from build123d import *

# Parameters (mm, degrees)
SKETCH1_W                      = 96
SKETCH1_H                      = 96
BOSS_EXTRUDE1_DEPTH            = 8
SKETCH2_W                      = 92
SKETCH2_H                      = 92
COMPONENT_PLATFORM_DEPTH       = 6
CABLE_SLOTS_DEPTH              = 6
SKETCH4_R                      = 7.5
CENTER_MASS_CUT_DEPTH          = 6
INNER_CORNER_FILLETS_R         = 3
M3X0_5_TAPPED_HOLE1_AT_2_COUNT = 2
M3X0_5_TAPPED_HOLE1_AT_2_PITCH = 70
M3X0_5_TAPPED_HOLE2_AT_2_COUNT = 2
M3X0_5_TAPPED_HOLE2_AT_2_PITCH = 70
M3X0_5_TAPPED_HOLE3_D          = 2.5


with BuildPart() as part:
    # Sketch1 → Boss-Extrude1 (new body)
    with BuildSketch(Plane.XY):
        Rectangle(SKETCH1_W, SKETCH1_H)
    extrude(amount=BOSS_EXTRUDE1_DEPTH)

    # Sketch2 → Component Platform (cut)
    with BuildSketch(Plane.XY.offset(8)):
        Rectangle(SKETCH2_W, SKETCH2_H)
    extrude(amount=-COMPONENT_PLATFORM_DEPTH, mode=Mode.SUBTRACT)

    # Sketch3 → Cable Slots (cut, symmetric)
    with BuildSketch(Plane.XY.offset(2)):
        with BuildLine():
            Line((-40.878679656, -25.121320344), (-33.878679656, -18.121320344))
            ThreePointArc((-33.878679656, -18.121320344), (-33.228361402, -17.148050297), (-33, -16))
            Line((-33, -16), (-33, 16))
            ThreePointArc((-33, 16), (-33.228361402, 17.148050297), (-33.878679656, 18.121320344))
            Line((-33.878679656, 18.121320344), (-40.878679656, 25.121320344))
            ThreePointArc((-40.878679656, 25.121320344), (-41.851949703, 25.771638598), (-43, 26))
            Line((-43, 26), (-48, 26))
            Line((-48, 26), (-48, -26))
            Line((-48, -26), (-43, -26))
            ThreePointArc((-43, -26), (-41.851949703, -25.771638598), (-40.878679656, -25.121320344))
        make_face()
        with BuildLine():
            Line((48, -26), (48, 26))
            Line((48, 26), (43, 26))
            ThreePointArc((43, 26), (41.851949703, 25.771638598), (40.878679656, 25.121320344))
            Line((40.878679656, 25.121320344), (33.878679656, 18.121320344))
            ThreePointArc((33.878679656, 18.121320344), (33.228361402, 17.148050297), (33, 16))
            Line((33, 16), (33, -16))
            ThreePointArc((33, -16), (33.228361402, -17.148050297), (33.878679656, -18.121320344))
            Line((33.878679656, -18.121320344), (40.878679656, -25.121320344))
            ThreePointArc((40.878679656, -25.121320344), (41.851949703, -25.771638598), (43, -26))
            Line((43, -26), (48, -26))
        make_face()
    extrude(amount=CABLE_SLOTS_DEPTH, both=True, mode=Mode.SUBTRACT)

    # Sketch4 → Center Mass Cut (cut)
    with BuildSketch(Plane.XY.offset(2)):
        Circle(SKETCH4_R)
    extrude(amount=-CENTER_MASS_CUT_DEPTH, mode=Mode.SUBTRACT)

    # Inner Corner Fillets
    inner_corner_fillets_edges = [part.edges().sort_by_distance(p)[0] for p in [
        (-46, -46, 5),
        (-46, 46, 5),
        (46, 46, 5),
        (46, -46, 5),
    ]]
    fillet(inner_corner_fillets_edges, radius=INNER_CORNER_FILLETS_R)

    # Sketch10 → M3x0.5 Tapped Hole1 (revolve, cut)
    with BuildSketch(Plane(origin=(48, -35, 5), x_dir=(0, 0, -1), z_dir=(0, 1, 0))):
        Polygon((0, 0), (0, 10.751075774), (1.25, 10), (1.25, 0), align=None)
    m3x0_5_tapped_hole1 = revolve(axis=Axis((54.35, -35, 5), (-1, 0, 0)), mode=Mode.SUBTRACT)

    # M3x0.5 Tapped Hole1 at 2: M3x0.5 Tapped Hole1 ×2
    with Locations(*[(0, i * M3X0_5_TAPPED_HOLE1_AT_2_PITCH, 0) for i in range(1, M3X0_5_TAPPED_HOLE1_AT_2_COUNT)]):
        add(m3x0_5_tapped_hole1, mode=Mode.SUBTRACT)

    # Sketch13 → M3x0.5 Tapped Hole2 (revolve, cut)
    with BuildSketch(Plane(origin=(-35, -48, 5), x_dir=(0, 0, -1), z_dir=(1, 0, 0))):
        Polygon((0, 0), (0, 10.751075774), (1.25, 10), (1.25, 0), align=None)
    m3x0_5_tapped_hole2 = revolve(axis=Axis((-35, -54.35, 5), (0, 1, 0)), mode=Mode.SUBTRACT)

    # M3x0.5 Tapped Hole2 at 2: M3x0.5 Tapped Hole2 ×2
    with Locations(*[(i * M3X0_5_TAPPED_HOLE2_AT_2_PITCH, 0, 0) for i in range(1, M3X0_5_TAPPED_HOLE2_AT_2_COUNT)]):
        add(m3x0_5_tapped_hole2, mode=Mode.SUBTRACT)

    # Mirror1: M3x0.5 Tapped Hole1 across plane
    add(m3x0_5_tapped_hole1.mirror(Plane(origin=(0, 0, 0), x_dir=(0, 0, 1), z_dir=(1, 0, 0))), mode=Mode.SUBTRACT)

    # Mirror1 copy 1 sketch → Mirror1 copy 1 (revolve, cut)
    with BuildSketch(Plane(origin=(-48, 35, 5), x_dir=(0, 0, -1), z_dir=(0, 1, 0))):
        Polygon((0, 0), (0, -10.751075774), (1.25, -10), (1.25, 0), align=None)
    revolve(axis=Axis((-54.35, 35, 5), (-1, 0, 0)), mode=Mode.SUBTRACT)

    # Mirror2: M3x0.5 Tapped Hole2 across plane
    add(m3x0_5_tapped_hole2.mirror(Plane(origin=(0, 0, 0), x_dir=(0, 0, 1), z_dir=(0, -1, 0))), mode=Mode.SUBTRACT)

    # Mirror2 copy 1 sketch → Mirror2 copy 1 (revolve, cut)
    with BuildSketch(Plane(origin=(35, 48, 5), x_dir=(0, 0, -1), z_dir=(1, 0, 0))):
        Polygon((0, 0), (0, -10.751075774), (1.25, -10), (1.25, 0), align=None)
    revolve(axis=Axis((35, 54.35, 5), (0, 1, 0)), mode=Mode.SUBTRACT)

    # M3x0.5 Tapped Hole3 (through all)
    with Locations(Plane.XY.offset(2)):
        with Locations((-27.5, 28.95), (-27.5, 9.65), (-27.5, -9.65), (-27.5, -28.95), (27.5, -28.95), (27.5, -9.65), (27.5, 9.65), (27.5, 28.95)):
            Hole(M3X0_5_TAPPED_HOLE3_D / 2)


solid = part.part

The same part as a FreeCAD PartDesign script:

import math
import FreeCAD as App
import Part
import Sketcher
Q = App.Units.Quantity


def edges_at(feature, points):
    """Names of the edges that pass closest to the given points."""
    edges = feature.Shape.Edges
    near = lambda p: min(range(len(edges)), key=lambda i: edges[i].distToShape(Part.Vertex(*p))[0])
    return sorted({f"Edge{near(p) + 1}" for p in points})


def add_polygon(sketch, points):
    """Adds a closed chain of lines whose ends are joined by coincident constraints."""
    first, n = sketch.GeometryCount, len(points)
    for a, b in zip(points, points[1:] + points[:1]):
        sketch.addGeometry(Part.LineSegment(App.Vector(*a, 0), App.Vector(*b, 0)), False)
    for i in range(n):
        sketch.addConstraint(Sketcher.Constraint("Coincident", first + i, 2, first + (i + 1) % n, 1))

doc = App.newDocument("Part")
body = doc.addObject("PartDesign::Body", "Body")

# Sketch on XY plane
sketch1 = body.newObject("Sketcher::SketchObject", "Sketch")
sketch1.AttachmentSupport = (doc.getObject("XY_Plane"), [""])
sketch1.MapMode = "FlatFace"
add_polygon(sketch1, [(-48, 48), (-48, -48), (48, -48), (48, 48)])  # lines 0-3
sketch1.addConstraint(Sketcher.Constraint("Vertical", 0))
sketch1.addConstraint(Sketcher.Constraint("Horizontal", 1))
sketch1.addConstraint(Sketcher.Constraint("Vertical", 2))
sketch1.addConstraint(Sketcher.Constraint("Horizontal", 3))
sketch1.addConstraint(Sketcher.Constraint("Symmetric", 0, 2, 2, 2, -1, 1))
sketch1.addConstraint(Sketcher.Constraint("Equal", 3, 0))
sketch1.addConstraint(Sketcher.Constraint("DistanceX", 1, 1, 1, 2, 96.0))
pad1 = body.newObject("PartDesign::Pad", "Pad")
pad1.Profile = sketch1
pad1.Length = 8

# Sketch on XY plane
sketch2 = body.newObject("Sketcher::SketchObject", "Sketch001")
sketch2.AttachmentSupport = (doc.getObject("XY_Plane"), [""])
sketch2.MapMode = "FlatFace"
sketch2.AttachmentOffset = App.Placement(App.Vector(0, 0, 8), App.Rotation())
add_polygon(sketch2, [(-46, 46), (-46, -46), (46, -46), (46, 46)])  # lines 0-3
sketch2.addConstraint(Sketcher.Constraint("Vertical", 0))
sketch2.addConstraint(Sketcher.Constraint("Horizontal", 1))
sketch2.addConstraint(Sketcher.Constraint("Vertical", 2))
sketch2.addConstraint(Sketcher.Constraint("Horizontal", 3))
sketch2.addConstraint(Sketcher.Constraint("Symmetric", 0, 2, 2, 2, -1, 1))
sketch2.addConstraint(Sketcher.Constraint("Equal", 3, 0))
sketch2.addConstraint(Sketcher.Constraint("DistanceX", 1, 1, 1, 2, 92.0))
pocket1 = body.newObject("PartDesign::Pocket", "Pocket")
pocket1.Profile = sketch2
pocket1.Length = 6

# Sketch on XY plane
sketch3 = body.newObject("Sketcher::SketchObject", "Sketch002")
sketch3.AttachmentSupport = (doc.getObject("XY_Plane"), [""])
sketch3.MapMode = "FlatFace"
sketch3.AttachmentOffset = App.Placement(App.Vector(0, 0, 2), App.Rotation())
sketch3.addGeometry(Part.LineSegment(App.Vector(-40.9, -25.1, 0), App.Vector(-33.9, -18.1, 0)), False)
sketch3.addGeometry(Part.ArcOfCircle(Part.Circle(App.Vector(-36, -16, 0), App.Vector(0, 0, 1), 3), math.radians(-45), math.radians(0)), False)
sketch3.addGeometry(Part.LineSegment(App.Vector(-33, -16, 0), App.Vector(-33, 16, 0)), False)
sketch3.addGeometry(Part.ArcOfCircle(Part.Circle(App.Vector(-36, 16, 0), App.Vector(0, 0, 1), 3), math.radians(0), math.radians(45)), False)
sketch3.addGeometry(Part.LineSegment(App.Vector(-33.9, 18.1, 0), App.Vector(-40.9, 25.1, 0)), False)
sketch3.addGeometry(Part.ArcOfCircle(Part.Circle(App.Vector(-43, 23, 0), App.Vector(0, 0, 1), 3), math.radians(45), math.radians(90)), False)
sketch3.addGeometry(Part.LineSegment(App.Vector(-43, 26, 0), App.Vector(-48, 26, 0)), False)
sketch3.addGeometry(Part.LineSegment(App.Vector(-48, 26, 0), App.Vector(-48, -26, 0)), False)
sketch3.addGeometry(Part.LineSegment(App.Vector(-48, -26, 0), App.Vector(-43, -26, 0)), False)
sketch3.addGeometry(Part.ArcOfCircle(Part.Circle(App.Vector(-43, -23, 0), App.Vector(0, 0, 1), 3), math.radians(-90), math.radians(-45)), False)
sketch3.addGeometry(Part.LineSegment(App.Vector(48, -26, 0), App.Vector(48, 26, 0)), False)
sketch3.addGeometry(Part.LineSegment(App.Vector(48, 26, 0), App.Vector(43, 26, 0)), False)
sketch3.addGeometry(Part.ArcOfCircle(Part.Circle(App.Vector(43, 23, 0), App.Vector(0, 0, 1), 3), math.radians(90), math.radians(135)), False)
sketch3.addGeometry(Part.LineSegment(App.Vector(40.9, 25.1, 0), App.Vector(33.9, 18.1, 0)), False)
sketch3.addGeometry(Part.ArcOfCircle(Part.Circle(App.Vector(36, 16, 0), App.Vector(0, 0, 1), 3), math.radians(135), math.radians(180)), False)
sketch3.addGeometry(Part.LineSegment(App.Vector(33, 16, 0), App.Vector(33, -16, 0)), False)
sketch3.addGeometry(Part.ArcOfCircle(Part.Circle(App.Vector(36, -16, 0), App.Vector(0, 0, 1), 3), math.radians(180), math.radians(225)), False)
sketch3.addGeometry(Part.LineSegment(App.Vector(33.9, -18.1, 0), App.Vector(40.9, -25.1, 0)), False)
sketch3.addGeometry(Part.ArcOfCircle(Part.Circle(App.Vector(43, -23, 0), App.Vector(0, 0, 1), 3), math.radians(-135), math.radians(-90)), False)
sketch3.addGeometry(Part.LineSegment(App.Vector(43, -26, 0), App.Vector(48, -26, 0)), False)
sketch3.addConstraint(Sketcher.Constraint("Tangent", 0, 2, 1, 1))
sketch3.addConstraint(Sketcher.Constraint("Tangent", 1, 2, 2, 1))
sketch3.addConstraint(Sketcher.Constraint("Tangent", 2, 2, 3, 1))
sketch3.addConstraint(Sketcher.Constraint("Tangent", 3, 2, 4, 1))
sketch3.addConstraint(Sketcher.Constraint("Tangent", 4, 2, 5, 1))
sketch3.addConstraint(Sketcher.Constraint("Tangent", 5, 2, 6, 1))
sketch3.addConstraint(Sketcher.Constraint("Coincident", 6, 2, 7, 1))
sketch3.addConstraint(Sketcher.Constraint("Coincident", 7, 2, 8, 1))
sketch3.addConstraint(Sketcher.Constraint("Tangent", 8, 2, 9, 1))
sketch3.addConstraint(Sketcher.Constraint("Tangent", 9, 2, 0, 1))
sketch3.addConstraint(Sketcher.Constraint("Coincident", 10, 2, 11, 1))
sketch3.addConstraint(Sketcher.Constraint("Tangent", 11, 2, 12, 1))
sketch3.addConstraint(Sketcher.Constraint("Tangent", 12, 2, 13, 1))
sketch3.addConstraint(Sketcher.Constraint("Tangent", 13, 2, 14, 1))
sketch3.addConstraint(Sketcher.Constraint("Tangent", 14, 2, 15, 1))
sketch3.addConstraint(Sketcher.Constraint("Tangent", 15, 2, 16, 1))
sketch3.addConstraint(Sketcher.Constraint("Tangent", 16, 2, 17, 1))
sketch3.addConstraint(Sketcher.Constraint("Tangent", 17, 2, 18, 1))
sketch3.addConstraint(Sketcher.Constraint("Tangent", 18, 2, 19, 1))
sketch3.addConstraint(Sketcher.Constraint("Coincident", 19, 2, 10, 1))
sketch3.addConstraint(Sketcher.Constraint("Vertical", 2))
sketch3.addConstraint(Sketcher.Constraint("Horizontal", 6))
sketch3.addConstraint(Sketcher.Constraint("Vertical", 7))
sketch3.addConstraint(Sketcher.Constraint("Horizontal", 8))
sketch3.addConstraint(Sketcher.Constraint("Vertical", 10))
sketch3.addConstraint(Sketcher.Constraint("Horizontal", 11))
sketch3.addConstraint(Sketcher.Constraint("Vertical", 15))
sketch3.addConstraint(Sketcher.Constraint("Horizontal", 19))
sketch3.addConstraint(Sketcher.Constraint("Equal", 1, 3))
sketch3.addConstraint(Sketcher.Constraint("Equal", 3, 5))
sketch3.addConstraint(Sketcher.Constraint("Equal", 5, 9))
sketch3.addConstraint(Sketcher.Constraint("Equal", 9, 12))
sketch3.addConstraint(Sketcher.Constraint("Equal", 12, 14))
sketch3.addConstraint(Sketcher.Constraint("Equal", 14, 16))
sketch3.addConstraint(Sketcher.Constraint("Equal", 16, 18))
sketch3.addConstraint(Sketcher.Constraint("Symmetric", 9, 3, 12, 3, -1, 1))
sketch3.addConstraint(Sketcher.Constraint("Symmetric", 1, 3, 14, 3, -1, 1))
sketch3.addConstraint(Sketcher.Constraint("Symmetric", 5, 3, 18, 3, -1, 1))
sketch3.addConstraint(Sketcher.Constraint("Symmetric", 5, 3, 12, 3, -2))
sketch3.addConstraint(Sketcher.Constraint("Perpendicular", 0, 4))
sketch3.addConstraint(Sketcher.Constraint("Perpendicular", 13, 17))
sketch3.addConstraint(Sketcher.Constraint("Horizontal", 3, 3, 14, 3))
sketch3.addConstraint(Sketcher.Constraint("Equal", 8, 11))
sketch3.addConstraint(Sketcher.Constraint("Radius", 1, 3.0))
sketch3.addConstraint(Sketcher.Constraint("DistanceX", 6, 2, 6, 1, 5.0))
sketch3.addConstraint(Sketcher.Constraint("DistanceY", 2, 1, 2, 2, 32.0))
sketch3.addConstraint(Sketcher.Constraint("DistanceY", 7, 2, 7, 1, 52.0))
sketch3.addConstraint(Sketcher.Constraint("DistanceX", 1, 3, -1, 1, 36.0))
pocket2 = body.newObject("PartDesign::Pocket", "Pocket001")
pocket2.Profile = sketch3
pocket2.Length = 12
pocket2.Midplane = True

# Sketch on XY plane
sketch4 = body.newObject("Sketcher::SketchObject", "Sketch003")
sketch4.AttachmentSupport = (doc.getObject("XY_Plane"), [""])
sketch4.MapMode = "FlatFace"
sketch4.AttachmentOffset = App.Placement(App.Vector(0, 0, 2), App.Rotation())
sketch4.addGeometry(Part.Circle(App.Vector(0, 0, 0), App.Vector(0, 0, 1), 8), False)
sketch4.addConstraint(Sketcher.Constraint("Coincident", 0, 3, -1, 1))
sketch4.addConstraint(Sketcher.Constraint("Diameter", 0, 15.0))
pocket3 = body.newObject("PartDesign::Pocket", "Pocket002")
pocket3.Profile = sketch4
pocket3.Length = 6
doc.recompute()

fillet = body.newObject("PartDesign::Fillet", "Fillet")
fillet.Base = (pocket3, edges_at(pocket3, [
    (-46, -46, 5),
    (-46, 46, 5),
    (46, 46, 5),
    (46, -46, 5),
]))
fillet.Radius = 3

# Sketch on XZ plane
sketch5 = body.newObject("Sketcher::SketchObject", "Sketch004")
sketch5.AttachmentSupport = (doc.getObject("XZ_Plane"), [""])
sketch5.MapMode = "FlatFace"
sketch5.AttachmentOffset = App.Placement(App.Vector(0, 0, 35), App.Rotation())
add_polygon(sketch5, [(37.2, 5), (48, 5), (48, 3.8), (38, 3.8)])  # lines 0-3
sketch5.addGeometry(Part.LineSegment(App.Vector(48, 5, 0), App.Vector(37.2, 5, 0)), True)  # axis
sketch5.addConstraint(Sketcher.Constraint("Horizontal", 0))
sketch5.addConstraint(Sketcher.Constraint("Vertical", 1))
sketch5.addConstraint(Sketcher.Constraint("Horizontal", 2))
sketch5.addConstraint(Sketcher.Constraint("Horizontal", 4))
sketch5.addConstraint(Sketcher.Constraint("Coincident", 4, 1, 0, 2))
sketch5.addConstraint(Sketcher.Constraint("Equal", 0, 4))
sketch5.addConstraint(Sketcher.Constraint("DistanceX", 2, 2, 2, 1, 10.0))
sketch5.addConstraint(Sketcher.Constraint("Angle", 3, Q("121 deg")))
sketch5.addConstraint(Sketcher.Constraint("DistanceX", -1, 1, 0, 2, 48.0))
sketch5.addConstraint(Sketcher.Constraint("DistanceY", -1, 1, 0, 2, 5.0))
sketch5.addConstraint(Sketcher.Constraint("DistanceY", 1, 2, 1, 1, 1.25))
groove = body.newObject("PartDesign::Groove", "Groove")
groove.Profile = sketch5
groove.ReferenceAxis = (sketch5, ["Axis0"])
groove.Angle = 360
doc.recompute()

linearpattern = body.newObject("PartDesign::LinearPattern", "LinearPattern")
linearpattern.Originals = [groove]
linearpattern.Direction = (doc.getObject("Y_Axis"), [""])
linearpattern.Mode = "offset"
linearpattern.Offset = 70
linearpattern.Occurrences = 2
body.Tip = linearpattern

# Sketch on YZ plane
sketch6 = body.newObject("Sketcher::SketchObject", "Sketch005")
sketch6.AttachmentSupport = (doc.getObject("YZ_Plane"), [""])
sketch6.MapMode = "FlatFace"
sketch6.AttachmentOffset = App.Placement(App.Vector(0, 0, -35), App.Rotation())
add_polygon(sketch6, [(-37.2, 5), (-48, 5), (-48, 3.8), (-38, 3.8)])  # lines 0-3
sketch6.addGeometry(Part.LineSegment(App.Vector(-48, 5, 0), App.Vector(-37.2, 5, 0)), True)  # axis
sketch6.addConstraint(Sketcher.Constraint("Horizontal", 0))
sketch6.addConstraint(Sketcher.Constraint("Vertical", 1))
sketch6.addConstraint(Sketcher.Constraint("Horizontal", 2))
sketch6.addConstraint(Sketcher.Constraint("Horizontal", 4))
sketch6.addConstraint(Sketcher.Constraint("Coincident", 4, 1, 0, 2))
sketch6.addConstraint(Sketcher.Constraint("Equal", 0, 4))
sketch6.addConstraint(Sketcher.Constraint("DistanceX", 2, 1, 2, 2, 10.0))
sketch6.addConstraint(Sketcher.Constraint("Angle", 3, Q("59 deg")))
sketch6.addConstraint(Sketcher.Constraint("DistanceX", 0, 2, -1, 1, 48.0))
sketch6.addConstraint(Sketcher.Constraint("DistanceY", -1, 1, 0, 2, 5.0))
sketch6.addConstraint(Sketcher.Constraint("DistanceY", 1, 2, 1, 1, 1.25))
groove2 = body.newObject("PartDesign::Groove", "Groove001")
groove2.Profile = sketch6
groove2.ReferenceAxis = (sketch6, ["Axis0"])
groove2.Angle = 360
doc.recompute()

linearpattern2 = body.newObject("PartDesign::LinearPattern", "LinearPattern001")
linearpattern2.Originals = [groove2]
linearpattern2.Direction = (doc.getObject("X_Axis"), [""])
linearpattern2.Mode = "offset"
linearpattern2.Offset = 70
linearpattern2.Occurrences = 2
body.Tip = linearpattern2
doc.recompute()

mirrored = body.newObject("PartDesign::Mirrored", "Mirrored")
mirrored.Originals = [groove]
mirrored.MirrorPlane = (doc.getObject("YZ_Plane"), [""])
body.Tip = mirrored

# Sketch on XZ plane
sketch7 = body.newObject("Sketcher::SketchObject", "Sketch006")
sketch7.AttachmentSupport = (doc.getObject("XZ_Plane"), [""])
sketch7.MapMode = "FlatFace"
sketch7.AttachmentOffset = App.Placement(App.Vector(0, 0, -35), App.Rotation())
add_polygon(sketch7, [(-48, 5), (-37.2, 5), (-38, 3.8), (-48, 3.8)])  # lines 0-3
sketch7.addGeometry(Part.LineSegment(App.Vector(-37.2, 5, 0), App.Vector(-48, 5, 0)), True)  # axis
sketch7.addConstraint(Sketcher.Constraint("Horizontal", 0))
sketch7.addConstraint(Sketcher.Constraint("Horizontal", 2))
sketch7.addConstraint(Sketcher.Constraint("Vertical", 3))
sketch7.addConstraint(Sketcher.Constraint("Horizontal", 4))
sketch7.addConstraint(Sketcher.Constraint("Coincident", 4, 1, 0, 2))
sketch7.addConstraint(Sketcher.Constraint("Vertical", 2, 2, 4, 2))
sketch7.addConstraint(Sketcher.Constraint("DistanceX", 2, 2, 2, 1, 10.0))
sketch7.addConstraint(Sketcher.Constraint("Angle", 1, Q("-121 deg")))
sketch7.addConstraint(Sketcher.Constraint("DistanceY", -1, 1, 0, 2, 5.0))
sketch7.addConstraint(Sketcher.Constraint("DistanceX", 1, 2, -1, 1, 38.0))
sketch7.addConstraint(Sketcher.Constraint("DistanceY", 3, 1, 3, 2, 1.25))
groove3 = body.newObject("PartDesign::Groove", "Groove002")
groove3.Profile = sketch7
groove3.ReferenceAxis = (sketch7, ["Axis0"])
groove3.Angle = 360
doc.recompute()

mirrored2 = body.newObject("PartDesign::Mirrored", "Mirrored001")
mirrored2.Originals = [groove2]
mirrored2.MirrorPlane = (doc.getObject("XZ_Plane"), [""])
body.Tip = mirrored2

# Sketch on YZ plane
sketch8 = body.newObject("Sketcher::SketchObject", "Sketch007")
sketch8.AttachmentSupport = (doc.getObject("YZ_Plane"), [""])
sketch8.MapMode = "FlatFace"
sketch8.AttachmentOffset = App.Placement(App.Vector(0, 0, 35), App.Rotation())
add_polygon(sketch8, [(48, 5), (37.2, 5), (38, 3.8), (48, 3.8)])  # lines 0-3
sketch8.addGeometry(Part.LineSegment(App.Vector(37.2, 5, 0), App.Vector(48, 5, 0)), True)  # axis
sketch8.addConstraint(Sketcher.Constraint("Horizontal", 0))
sketch8.addConstraint(Sketcher.Constraint("Horizontal", 2))
sketch8.addConstraint(Sketcher.Constraint("Vertical", 3))
sketch8.addConstraint(Sketcher.Constraint("Horizontal", 4))
sketch8.addConstraint(Sketcher.Constraint("Coincident", 4, 1, 0, 2))
sketch8.addConstraint(Sketcher.Constraint("Vertical", 2, 2, 4, 2))
sketch8.addConstraint(Sketcher.Constraint("DistanceX", 2, 1, 2, 2, 10.0))
sketch8.addConstraint(Sketcher.Constraint("Angle", 1, Q("-59 deg")))
sketch8.addConstraint(Sketcher.Constraint("DistanceY", -1, 1, 0, 2, 5.0))
sketch8.addConstraint(Sketcher.Constraint("DistanceX", -1, 1, 1, 2, 38.0))
sketch8.addConstraint(Sketcher.Constraint("DistanceY", 3, 1, 3, 2, 1.25))
groove4 = body.newObject("PartDesign::Groove", "Groove003")
groove4.Profile = sketch8
groove4.ReferenceAxis = (sketch8, ["Axis0"])
groove4.Angle = 360

# Sketch on XY plane
sketch9 = body.newObject("Sketcher::SketchObject", "Sketch008")
sketch9.AttachmentSupport = (doc.getObject("XY_Plane"), [""])
sketch9.MapMode = "FlatFace"
sketch9.AttachmentOffset = App.Placement(App.Vector(0, 0, 2), App.Rotation())
sketch9.addGeometry(Part.Circle(App.Vector(-27.5, 28.9, 0), App.Vector(0, 0, 1), 1.2), False)
sketch9.addGeometry(Part.Circle(App.Vector(-27.5, 9.7, 0), App.Vector(0, 0, 1), 1.2), False)
sketch9.addGeometry(Part.Circle(App.Vector(-27.5, -9.7, 0), App.Vector(0, 0, 1), 1.2), False)
sketch9.addGeometry(Part.Circle(App.Vector(-27.5, -28.9, 0), App.Vector(0, 0, 1), 1.2), False)
sketch9.addGeometry(Part.Circle(App.Vector(27.5, -28.9, 0), App.Vector(0, 0, 1), 1.2), False)
sketch9.addGeometry(Part.Circle(App.Vector(27.5, -9.7, 0), App.Vector(0, 0, 1), 1.2), False)
sketch9.addGeometry(Part.Circle(App.Vector(27.5, 9.7, 0), App.Vector(0, 0, 1), 1.2), False)
sketch9.addGeometry(Part.Circle(App.Vector(27.5, 28.9, 0), App.Vector(0, 0, 1), 1.2), False)
sketch9.addConstraint(Sketcher.Constraint("Equal", 0, 1))
sketch9.addConstraint(Sketcher.Constraint("Equal", 1, 2))
sketch9.addConstraint(Sketcher.Constraint("Equal", 2, 3))
sketch9.addConstraint(Sketcher.Constraint("Equal", 3, 4))
sketch9.addConstraint(Sketcher.Constraint("Equal", 4, 5))
sketch9.addConstraint(Sketcher.Constraint("Equal", 5, 6))
sketch9.addConstraint(Sketcher.Constraint("Equal", 6, 7))
sketch9.addConstraint(Sketcher.Constraint("Symmetric", 0, 3, 4, 3, -1, 1))
sketch9.addConstraint(Sketcher.Constraint("Symmetric", 1, 3, 5, 3, -1, 1))
sketch9.addConstraint(Sketcher.Constraint("Symmetric", 2, 3, 6, 3, -1, 1))
sketch9.addConstraint(Sketcher.Constraint("Symmetric", 3, 3, 7, 3, -1, 1))
sketch9.addConstraint(Sketcher.Constraint("Symmetric", 3, 3, 4, 3, -2))
sketch9.addConstraint(Sketcher.Constraint("Symmetric", 2, 3, 5, 3, -2))
sketch9.addConstraint(Sketcher.Constraint("Vertical", 0, 3, 1, 3))
sketch9.addConstraint(Sketcher.Constraint("Diameter", 0, 2.5))
sketch9.addConstraint(Sketcher.Constraint("DistanceX", 3, 3, 4, 3, 55.0))
sketch9.addConstraint(Sketcher.Constraint("DistanceY", 1, 3, 0, 3, 19.3))
sketch9.addConstraint(Sketcher.Constraint("DistanceY", 2, 3, 1, 3, 19.3))
doc.recompute()
hole = body.newObject("PartDesign::Hole", "Hole")
hole.Profile = sketch9
hole.ThreadType = "None"
hole.Diameter = 2.5
hole.DepthType = "ThroughAll"

doc.recompute()
